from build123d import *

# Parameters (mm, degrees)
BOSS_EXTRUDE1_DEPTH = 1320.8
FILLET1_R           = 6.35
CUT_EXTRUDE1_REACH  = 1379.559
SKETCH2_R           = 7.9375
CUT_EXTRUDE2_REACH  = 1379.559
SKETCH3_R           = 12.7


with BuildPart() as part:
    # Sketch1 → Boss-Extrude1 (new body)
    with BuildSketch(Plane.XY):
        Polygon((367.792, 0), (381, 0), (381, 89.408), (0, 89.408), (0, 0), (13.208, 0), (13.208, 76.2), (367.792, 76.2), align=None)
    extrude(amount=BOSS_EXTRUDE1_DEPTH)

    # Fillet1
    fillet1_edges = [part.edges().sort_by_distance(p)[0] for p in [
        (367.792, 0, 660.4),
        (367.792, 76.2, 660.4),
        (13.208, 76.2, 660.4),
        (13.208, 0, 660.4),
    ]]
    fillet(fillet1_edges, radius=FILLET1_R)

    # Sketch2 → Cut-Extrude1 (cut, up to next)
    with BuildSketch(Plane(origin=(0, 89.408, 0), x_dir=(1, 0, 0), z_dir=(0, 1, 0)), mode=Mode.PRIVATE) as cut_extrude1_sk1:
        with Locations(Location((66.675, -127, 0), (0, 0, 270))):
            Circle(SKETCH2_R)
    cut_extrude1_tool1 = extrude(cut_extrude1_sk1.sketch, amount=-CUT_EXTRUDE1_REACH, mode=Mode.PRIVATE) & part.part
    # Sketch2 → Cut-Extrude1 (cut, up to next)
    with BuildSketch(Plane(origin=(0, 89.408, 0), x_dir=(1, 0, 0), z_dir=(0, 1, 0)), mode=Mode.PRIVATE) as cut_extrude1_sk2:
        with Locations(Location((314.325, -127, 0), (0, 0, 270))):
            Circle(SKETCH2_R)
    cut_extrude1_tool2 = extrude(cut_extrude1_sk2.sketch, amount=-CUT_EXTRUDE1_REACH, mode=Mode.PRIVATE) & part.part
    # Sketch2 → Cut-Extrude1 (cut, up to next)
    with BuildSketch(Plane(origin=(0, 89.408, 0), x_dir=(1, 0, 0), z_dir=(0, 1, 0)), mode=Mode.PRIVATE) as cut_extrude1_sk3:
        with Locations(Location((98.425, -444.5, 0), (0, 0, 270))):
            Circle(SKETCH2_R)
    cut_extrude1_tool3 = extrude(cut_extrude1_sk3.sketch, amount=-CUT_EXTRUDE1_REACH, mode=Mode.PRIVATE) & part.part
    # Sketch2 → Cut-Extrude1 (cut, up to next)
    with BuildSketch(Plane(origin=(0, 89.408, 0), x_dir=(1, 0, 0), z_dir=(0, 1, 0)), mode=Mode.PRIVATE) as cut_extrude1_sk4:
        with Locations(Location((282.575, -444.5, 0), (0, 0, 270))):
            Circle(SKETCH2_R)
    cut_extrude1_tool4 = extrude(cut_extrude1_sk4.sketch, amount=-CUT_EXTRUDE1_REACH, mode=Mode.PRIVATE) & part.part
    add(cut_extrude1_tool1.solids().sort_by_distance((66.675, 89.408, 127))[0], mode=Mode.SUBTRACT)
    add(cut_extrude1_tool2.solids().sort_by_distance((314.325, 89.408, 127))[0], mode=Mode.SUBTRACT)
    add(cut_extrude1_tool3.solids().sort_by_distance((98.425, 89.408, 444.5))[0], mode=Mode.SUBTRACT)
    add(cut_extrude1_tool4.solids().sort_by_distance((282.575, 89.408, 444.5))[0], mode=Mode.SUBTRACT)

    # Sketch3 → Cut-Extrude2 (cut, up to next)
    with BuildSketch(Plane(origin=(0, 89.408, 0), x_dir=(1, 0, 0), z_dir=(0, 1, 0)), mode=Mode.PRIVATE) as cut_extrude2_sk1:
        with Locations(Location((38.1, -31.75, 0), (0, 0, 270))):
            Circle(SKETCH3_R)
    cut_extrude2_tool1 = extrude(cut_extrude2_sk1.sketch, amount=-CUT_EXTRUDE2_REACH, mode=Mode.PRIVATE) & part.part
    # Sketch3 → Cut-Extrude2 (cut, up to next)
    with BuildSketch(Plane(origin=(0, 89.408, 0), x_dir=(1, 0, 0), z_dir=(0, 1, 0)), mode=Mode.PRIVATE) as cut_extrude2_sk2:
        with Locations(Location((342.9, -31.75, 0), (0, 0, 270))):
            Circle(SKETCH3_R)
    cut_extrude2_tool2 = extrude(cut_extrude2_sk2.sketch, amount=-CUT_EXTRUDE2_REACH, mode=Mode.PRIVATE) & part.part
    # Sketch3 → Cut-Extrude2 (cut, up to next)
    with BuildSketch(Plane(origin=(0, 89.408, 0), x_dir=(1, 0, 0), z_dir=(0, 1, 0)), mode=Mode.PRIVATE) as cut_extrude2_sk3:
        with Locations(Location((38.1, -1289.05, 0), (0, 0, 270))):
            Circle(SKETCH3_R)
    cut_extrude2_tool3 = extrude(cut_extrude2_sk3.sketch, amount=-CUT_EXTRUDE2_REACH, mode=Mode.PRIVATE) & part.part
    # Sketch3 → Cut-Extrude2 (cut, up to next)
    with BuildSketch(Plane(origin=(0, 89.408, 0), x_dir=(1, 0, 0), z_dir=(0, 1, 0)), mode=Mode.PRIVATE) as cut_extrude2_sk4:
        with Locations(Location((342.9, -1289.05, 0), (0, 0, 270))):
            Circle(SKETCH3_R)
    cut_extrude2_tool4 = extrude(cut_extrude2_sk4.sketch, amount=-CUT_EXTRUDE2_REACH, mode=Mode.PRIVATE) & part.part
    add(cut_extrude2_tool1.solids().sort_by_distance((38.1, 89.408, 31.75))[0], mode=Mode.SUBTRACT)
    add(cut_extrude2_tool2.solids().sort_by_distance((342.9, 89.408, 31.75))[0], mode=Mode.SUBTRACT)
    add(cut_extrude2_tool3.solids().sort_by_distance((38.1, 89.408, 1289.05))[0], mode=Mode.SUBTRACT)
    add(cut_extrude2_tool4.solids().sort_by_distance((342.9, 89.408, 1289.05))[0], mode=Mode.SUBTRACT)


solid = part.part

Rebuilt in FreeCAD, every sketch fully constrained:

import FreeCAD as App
import Part
import Sketcher
from FreeCAD import Vector
Q = App.Units.Quantity


def edges_at(feature, points):
    """Names of the edges that pass closest to the given points."""
    edges = feature.Shape.Edges
    near = lambda p: min(range(len(edges)), key=lambda i: edges[i].distToShape(Part.Vertex(*p))[0])
    return sorted({f"Edge{near(p) + 1}" for p in points})


def add_polygon(sketch, points):
    """Adds a closed chain of lines whose ends are joined by coincident constraints."""
    first, n = sketch.GeometryCount, len(points)
    for a, b in zip(points, points[1:] + points[:1]):
        sketch.addGeometry(Part.LineSegment(App.Vector(*a, 0), App.Vector(*b, 0)), False)
    for i in range(n):
        sketch.addConstraint(Sketcher.Constraint("Coincident", first + i, 2, first + (i + 1) % n, 1))

doc = App.newDocument("Part")
params = doc.addObject("Spreadsheet::Sheet", "Params")
for row, (alias, value) in enumerate([
    ("sketch1_width", "15 in"),
    ("sketch1_height", "3 in"),
    ("sketch1_width2", "0.52 in"),
    ("sketch1_height2", "3.52 in"),
    ("pad1_length", "52 in"),
    ("fillet_radius", "0.25 in"),
    ("sketch2_diameter", "0.625 in"),
    ("sketch3_diameter", "0.625 in"),
    ("sketch4_diameter", "0.625 in"),
    ("sketch5_diameter", "0.625 in"),
    ("sketch6_diameter", "1 in"),
    ("sketch7_diameter", "1 in"),
    ("sketch8_diameter", "1 in"),
    ("sketch9_diameter", "1 in"),
], start=1):
    params.set(f"A{row}", alias)
    params.set(f"B{row}", "=" + value)
    params.setAlias(f"B{row}", alias)

body = doc.addObject("PartDesign::Body", "Body")

# Sketch on XY plane
sketch1 = doc.addObject("Sketcher::SketchObject", "Sketch")
body.addObject(sketch1)
sketch1.AttachmentSupport = (doc.XY_Plane, [""])
sketch1.MapMode = "FlatFace"
add_polygon(sketch1, [(368, 0), (381, 0), (381, 89), (0, 89), (0, 0), (13, 0), (13, 76), (368, 76)])  # lines 0-7
sketch1.addConstraint(Sketcher.Constraint("Horizontal", 0))
sketch1.addConstraint(Sketcher.Constraint("Vertical", 1))
sketch1.addConstraint(Sketcher.Constraint("Horizontal", 2))
sketch1.addConstraint(Sketcher.Constraint("Vertical", 3))
sketch1.addConstraint(Sketcher.Constraint("Horizontal", 4))
sketch1.addConstraint(Sketcher.Constraint("Vertical", 5))
sketch1.addConstraint(Sketcher.Constraint("Horizontal", 6))
sketch1.addConstraint(Sketcher.Constraint("Vertical", 7))
sketch1.addConstraint(Sketcher.Constraint("Coincident", 3, 2, -1, 1))
sketch1.addConstraint(Sketcher.Constraint("PointOnObject", 0, 2, -1))
sketch1.addConstraint(Sketcher.Constraint("Equal", 0, 4))
sketch1.addConstraint(Sketcher.Constraint("DistanceX", 2, 2, 2, 1, Q("15 in")))
sketch1.addConstraint(Sketcher.Constraint("DistanceY", 5, 1, 5, 2, Q("3 in")))
sketch1.addConstraint(Sketcher.Constraint("DistanceX", 0, 1, 0, 2, Q("0.52 in")))
sketch1.addConstraint(Sketcher.Constraint("DistanceY", 1, 1, 1, 2, Q("3.52 in")))
sketch1.setExpression("Constraints[19]", "Params.sketch1_width")
sketch1.setExpression("Constraints[20]", "Params.sketch1_height")
sketch1.setExpression("Constraints[21]", "Params.sketch1_width2")
sketch1.setExpression("Constraints[22]", "Params.sketch1_height2")
pad1 = doc.addObject("PartDesign::Pad", "Pad")
body.addObject(pad1)
pad1.Profile = sketch1
pad1.setExpression("Length", "Params.pad1_length")
doc.recompute()

fillet = doc.addObject("PartDesign::Fillet", "Fillet")
body.addObject(fillet)
fillet.Base = (pad1, edges_at(pad1, [
    (367.792, 0, 660.4),
    (367.792, 76.2, 660.4),
    (13.208, 76.2, 660.4),
    (13.208, 0, 660.4),
]))
fillet.setExpression("Radius", "Params.fillet_radius")

# Sketch on XZ plane
sketch2 = doc.addObject("Sketcher::SketchObject", "Sketch001")
body.addObject(sketch2)
sketch2.AttachmentSupport = (doc.XZ_Plane, [""])
sketch2.MapMode = "FlatFace"
sketch2.AttachmentOffset = App.Placement(Vector(0, 0, -3.52 * 25.4), App.Rotation())
sketch2.addGeometry(Part.Circle(Vector(67, 127, 0), Vector(0, 0, 1), 8), False)
sketch2.addConstraint(Sketcher.Constraint("Diameter", 0, Q("0.625 in")))
sketch2.addConstraint(Sketcher.Constraint("DistanceY", -1, 1, 0, 3, Q("5 in")))
sketch2.addConstraint(Sketcher.Constraint("DistanceX", -1, 1, 0, 3, Q("2.625 in")))
sketch2.setExpression("Constraints[0]", "Params.sketch2_diameter")
pocket1 = doc.addObject("PartDesign::Pocket", "Pocket")
body.addObject(pocket1)
pocket1.Profile = sketch2
pocket1.Type = "UpToFirst"
pocket1.Reversed = True

# Sketch on XZ plane
sketch3 = doc.addObject("Sketcher::SketchObject", "Sketch002")
body.addObject(sketch3)
sketch3.AttachmentSupport = (doc.XZ_Plane, [""])
sketch3.MapMode = "FlatFace"
sketch3.AttachmentOffset = App.Placement(Vector(0, 0, -3.52 * 25.4), App.Rotation())
sketch3.addGeometry(Part.Circle(Vector(314, 127, 0), Vector(0, 0, 1), 8), False)
sketch3.addConstraint(Sketcher.Constraint("Diameter", 0, Q("0.625 in")))
sketch3.addConstraint(Sketcher.Constraint("DistanceY", -1, 1, 0, 3, Q("5 in")))
sketch3.addConstraint(Sketcher.Constraint("DistanceX", -1, 1, 0, 3, Q("12.375 in")))
sketch3.setExpression("Constraints[0]", "Params.sketch3_diameter")
pocket2 = doc.addObject("PartDesign::Pocket", "Pocket001")
body.addObject(pocket2)
pocket2.Profile = sketch3
pocket2.Type = "UpToFirst"
pocket2.Reversed = True

# Sketch on XZ plane
sketch4 = doc.addObject("Sketcher::SketchObject", "Sketch003")
body.addObject(sketch4)
sketch4.AttachmentSupport = (doc.XZ_Plane, [""])
sketch4.MapMode = "FlatFace"
sketch4.AttachmentOffset = App.Placement(Vector(0, 0, -3.52 * 25.4), App.Rotation())
sketch4.addGeometry(Part.Circle(Vector(98, 444, 0), Vector(0, 0, 1), 8), False)
sketch4.addConstraint(Sketcher.Constraint("Diameter", 0, Q("0.625 in")))
sketch4.addConstraint(Sketcher.Constraint("DistanceY", -1, 1, 0, 3, Q("17.5 in")))
sketch4.addConstraint(Sketcher.Constraint("DistanceX", -1, 1, 0, 3, Q("3.875 in")))
sketch4.setExpression("Constraints[0]", "Params.sketch4_diameter")
pocket3 = doc.addObject("PartDesign::Pocket", "Pocket002")
body.addObject(pocket3)
pocket3.Profile = sketch4
pocket3.Type = "UpToFirst"
pocket3.Reversed = True

# Sketch on XZ plane
sketch5 = doc.addObject("Sketcher::SketchObject", "Sketch004")
body.addObject(sketch5)
sketch5.AttachmentSupport = (doc.XZ_Plane, [""])
sketch5.MapMode = "FlatFace"
sketch5.AttachmentOffset = App.Placement(Vector(0, 0, -3.52 * 25.4), App.Rotation())
sketch5.addGeometry(Part.Circle(Vector(283, 444, 0), Vector(0, 0, 1), 8), False)
sketch5.addConstraint(Sketcher.Constraint("Diameter", 0, Q("0.625 in")))
sketch5.addConstraint(Sketcher.Constraint("DistanceY", -1, 1, 0, 3, Q("17.5 in")))
sketch5.addConstraint(Sketcher.Constraint("DistanceX", -1, 1, 0, 3, Q("11.125 in")))
sketch5.setExpression("Constraints[0]", "Params.sketch5_diameter")
pocket4 = doc.addObject("PartDesign::Pocket", "Pocket003")
body.addObject(pocket4)
pocket4.Profile = sketch5
pocket4.Type = "UpToFirst"
pocket4.Reversed = True

# Sketch on XZ plane
sketch6 = doc.addObject("Sketcher::SketchObject", "Sketch005")
body.addObject(sketch6)
sketch6.AttachmentSupport = (doc.XZ_Plane, [""])
sketch6.MapMode = "FlatFace"
sketch6.AttachmentOffset = App.Placement(Vector(0, 0, -3.52 * 25.4), App.Rotation())
sketch6.addGeometry(Part.Circle(Vector(38, 32, 0), Vector(0, 0, 1), 13), False)
sketch6.addConstraint(Sketcher.Constraint("Diameter", 0, Q("1 in")))
sketch6.addConstraint(Sketcher.Constraint("DistanceX", -1, 1, 0, 3, Q("1.5 in")))
sketch6.addConstraint(Sketcher.Constraint("DistanceY", -1, 1, 0, 3, Q("1.25 in")))
sketch6.setExpression("Constraints[0]", "Params.sketch6_diameter")
pocket5 = doc.addObject("PartDesign::Pocket", "Pocket004")
body.addObject(pocket5)
pocket5.Profile = sketch6
pocket5.Type = "UpToFirst"
pocket5.Reversed = True

# Sketch on XZ plane
sketch7 = doc.addObject("Sketcher::SketchObject", "Sketch006")
body.addObject(sketch7)
sketch7.AttachmentSupport = (doc.XZ_Plane, [""])
sketch7.MapMode = "FlatFace"
sketch7.AttachmentOffset = App.Placement(Vector(0, 0, -3.52 * 25.4), App.Rotation())
sketch7.addGeometry(Part.Circle(Vector(343, 32, 0), Vector(0, 0, 1), 13), False)
sketch7.addConstraint(Sketcher.Constraint("Diameter", 0, Q("1 in")))
sketch7.addConstraint(Sketcher.Constraint("DistanceX", -1, 1, 0, 3, Q("13.5 in")))
sketch7.addConstraint(Sketcher.Constraint("DistanceY", -1, 1, 0, 3, Q("1.25 in")))
sketch7.setExpression("Constraints[0]", "Params.sketch7_diameter")
pocket6 = doc.addObject("PartDesign::Pocket", "Pocket005")
body.addObject(pocket6)
pocket6.Profile = sketch7
pocket6.Type = "UpToFirst"
pocket6.Reversed = True

# Sketch on XZ plane
sketch8 = doc.addObject("Sketcher::SketchObject", "Sketch007")
body.addObject(sketch8)
sketch8.AttachmentSupport = (doc.XZ_Plane, [""])
sketch8.MapMode = "FlatFace"
sketch8.AttachmentOffset = App.Placement(Vector(0, 0, -3.52 * 25.4), App.Rotation())
sketch8.addGeometry(Part.Circle(Vector(38, 1289, 0), Vector(0, 0, 1), 13), False)
sketch8.addConstraint(Sketcher.Constraint("Diameter", 0, Q("1 in")))
sketch8.addConstraint(Sketcher.Constraint("DistanceX", -1, 1, 0, 3, Q("1.5 in")))
sketch8.addConstraint(Sketcher.Constraint("DistanceY", -1, 1, 0, 3, Q("50.75 in")))
sketch8.setExpression("Constraints[0]", "Params.sketch8_diameter")
pocket7 = doc.addObject("PartDesign::Pocket", "Pocket006")
body.addObject(pocket7)
pocket7.Profile = sketch8
pocket7.Type = "UpToFirst"
pocket7.Reversed = True

# Sketch on XZ plane
sketch9 = doc.addObject("Sketcher::SketchObject", "Sketch008")
body.addObject(sketch9)
sketch9.AttachmentSupport = (doc.XZ_Plane, [""])
sketch9.MapMode = "FlatFace"
sketch9.AttachmentOffset = App.Placement(Vector(0, 0, -3.52 * 25.4), App.Rotation())
sketch9.addGeometry(Part.Circle(Vector(343, 1289, 0), Vector(0, 0, 1), 13), False)
sketch9.addConstraint(Sketcher.Constraint("Diameter", 0, Q("1 in")))
sketch9.addConstraint(Sketcher.Constraint("DistanceX", -1, 1, 0, 3, Q("13.5 in")))
sketch9.addConstraint(Sketcher.Constraint("DistanceY", -1, 1, 0, 3, Q("50.75 in")))
sketch9.setExpression("Constraints[0]", "Params.sketch9_diameter")
pocket8 = doc.addObject("PartDesign::Pocket", "Pocket007")
body.addObject(pocket8)
pocket8.Profile = sketch9
pocket8.Type = "UpToFirst"
pocket8.Reversed = True

doc.recompute()
